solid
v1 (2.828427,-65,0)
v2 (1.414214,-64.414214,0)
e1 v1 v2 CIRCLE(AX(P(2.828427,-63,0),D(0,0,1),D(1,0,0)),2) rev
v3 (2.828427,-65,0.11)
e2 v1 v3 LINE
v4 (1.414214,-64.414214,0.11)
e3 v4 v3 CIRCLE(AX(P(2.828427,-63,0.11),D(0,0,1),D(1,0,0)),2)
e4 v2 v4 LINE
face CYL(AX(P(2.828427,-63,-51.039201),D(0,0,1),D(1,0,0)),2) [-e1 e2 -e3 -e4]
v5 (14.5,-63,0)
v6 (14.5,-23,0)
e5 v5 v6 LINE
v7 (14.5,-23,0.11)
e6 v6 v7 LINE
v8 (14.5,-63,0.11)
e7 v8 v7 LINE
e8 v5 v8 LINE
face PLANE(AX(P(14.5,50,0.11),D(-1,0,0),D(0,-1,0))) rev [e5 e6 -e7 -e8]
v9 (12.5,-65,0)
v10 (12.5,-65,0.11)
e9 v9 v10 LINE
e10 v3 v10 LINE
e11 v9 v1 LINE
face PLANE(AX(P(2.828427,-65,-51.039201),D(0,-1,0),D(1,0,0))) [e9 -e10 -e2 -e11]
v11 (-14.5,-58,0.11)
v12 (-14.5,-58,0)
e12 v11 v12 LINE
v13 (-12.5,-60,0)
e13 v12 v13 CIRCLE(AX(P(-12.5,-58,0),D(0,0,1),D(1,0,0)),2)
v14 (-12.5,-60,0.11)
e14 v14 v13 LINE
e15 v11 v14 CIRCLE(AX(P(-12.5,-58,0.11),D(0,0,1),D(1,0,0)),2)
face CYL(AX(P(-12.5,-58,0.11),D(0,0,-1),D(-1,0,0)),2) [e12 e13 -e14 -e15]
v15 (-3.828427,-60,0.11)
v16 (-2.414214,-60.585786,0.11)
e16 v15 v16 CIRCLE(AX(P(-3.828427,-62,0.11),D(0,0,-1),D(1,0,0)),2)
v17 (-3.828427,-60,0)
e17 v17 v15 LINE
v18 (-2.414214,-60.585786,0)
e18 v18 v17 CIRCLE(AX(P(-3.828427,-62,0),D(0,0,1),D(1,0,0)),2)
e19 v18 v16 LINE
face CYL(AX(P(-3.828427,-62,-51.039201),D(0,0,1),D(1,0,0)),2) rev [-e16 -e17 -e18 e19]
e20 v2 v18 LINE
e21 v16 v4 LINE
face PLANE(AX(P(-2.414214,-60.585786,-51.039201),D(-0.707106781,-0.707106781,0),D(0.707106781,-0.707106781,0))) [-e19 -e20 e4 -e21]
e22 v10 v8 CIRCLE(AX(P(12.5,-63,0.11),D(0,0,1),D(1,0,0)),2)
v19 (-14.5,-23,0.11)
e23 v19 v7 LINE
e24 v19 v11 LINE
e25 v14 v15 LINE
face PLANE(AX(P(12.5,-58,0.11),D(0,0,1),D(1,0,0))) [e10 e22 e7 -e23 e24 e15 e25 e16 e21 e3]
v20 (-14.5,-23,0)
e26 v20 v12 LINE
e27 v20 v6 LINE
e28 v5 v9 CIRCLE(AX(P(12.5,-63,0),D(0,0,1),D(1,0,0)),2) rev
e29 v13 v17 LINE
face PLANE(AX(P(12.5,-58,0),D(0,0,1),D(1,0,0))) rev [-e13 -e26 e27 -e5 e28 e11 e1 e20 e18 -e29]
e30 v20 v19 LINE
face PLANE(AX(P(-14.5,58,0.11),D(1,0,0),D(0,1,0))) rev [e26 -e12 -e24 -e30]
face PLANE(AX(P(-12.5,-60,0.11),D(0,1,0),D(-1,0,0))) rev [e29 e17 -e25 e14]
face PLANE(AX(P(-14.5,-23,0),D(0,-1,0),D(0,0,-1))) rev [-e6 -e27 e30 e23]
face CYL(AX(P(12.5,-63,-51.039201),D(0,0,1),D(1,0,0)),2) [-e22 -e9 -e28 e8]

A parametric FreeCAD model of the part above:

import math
import FreeCAD as App
import Part
import Sketcher
from FreeCAD import Vector
Q = App.Units.Quantity

doc = App.newDocument("Part")
params = doc.addObject("Spreadsheet::Sheet", "Params")
for row, (alias, value) in enumerate([
    ("sketch1_radius", "2 mm"),
    ("sketch1_radius2", "10 mm"),
    ("sketch1_width", "17 mm"),
    ("sketch1_height", "116 mm"),
    ("pad1_length", "0.11 mm"),
    ("sketch2_radius", "10 mm"),
    ("sketch2_radius2", "2 mm"),
    ("sketch2_width", "29 mm"),
    ("sketch2_height", "73 mm"),
    ("sketch3_radius", "2 mm"),
    ("sketch3_width", "29 mm"),
    ("sketch3_height", "40 mm"),
    ("sketch3_height2", "35 mm"),
    ("pad2_length", "0.11 mm"),
], start=1):
    params.set(f"A{row}", alias)
    params.set(f"B{row}", "=" + value)
    params.setAlias(f"B{row}", alias)

body = doc.addObject("PartDesign::Body", "Body")

# Sketch on XY plane
sketch1 = body.newObject("Sketcher::SketchObject", "Sketch")
sketch1.AttachmentSupport = (doc.getObject("XY_Plane"), [""])
sketch1.MapMode = "FlatFace"
sketch1.addGeometry([
    Part.LineSegment(Vector(4.5, 60, 0), Vector(-12.5, 60, 0)),  # 0
    Part.ArcOfCircle(Part.Circle(Vector(-12.5, 58, 0), Vector(0, 0, 1), 2), math.radians(90), math.radians(180)),  # 1
    Part.LineSegment(Vector(-14.5, 58, 0), Vector(-14.5, -58, 0)),  # 2
    Part.ArcOfCircle(Part.Circle(Vector(-12.5, -58, 0), Vector(0, 0, 1), 2), math.radians(-180), math.radians(-90)),  # 3
    Part.LineSegment(Vector(-12.5, -60, 0), Vector(12.5, -60, 0)),  # 4
    Part.ArcOfCircle(Part.Circle(Vector(12.5, -58, 0), Vector(0, 0, 1), 2), math.radians(-90), math.radians(0)),  # 5
    Part.LineSegment(Vector(14.5, -58, 0), Vector(14.5, 50, 0)),  # 6
    Part.ArcOfCircle(Part.Circle(Vector(4.5, 50, 0), Vector(0, 0, 1), 10), math.radians(0), math.radians(90)),  # 7
], False)
sketch1.addConstraint([
    Sketcher.Constraint("Tangent", 0, 2, 1, 1),
    Sketcher.Constraint("Tangent", 1, 2, 2, 1),
    Sketcher.Constraint("Tangent", 2, 2, 3, 1),
    Sketcher.Constraint("Tangent", 3, 2, 4, 1),
    Sketcher.Constraint("Tangent", 4, 2, 5, 1),
    Sketcher.Constraint("Tangent", 5, 2, 6, 1),
    Sketcher.Constraint("Tangent", 6, 2, 7, 1),
    Sketcher.Constraint("Tangent", 7, 2, 0, 1),
    Sketcher.Constraint("Horizontal", 0),
    Sketcher.Constraint("Vertical", 2),
    Sketcher.Constraint("Horizontal", 4),
    Sketcher.Constraint("Vertical", 6),
    Sketcher.Constraint("Equal", 1, 3),
    Sketcher.Constraint("Equal", 3, 5),
    Sketcher.Constraint("Symmetric", 1, 3, 5, 3, -1, 1),
    Sketcher.Constraint("Radius", 1, Q("2 mm")),
    Sketcher.Constraint("Radius", 7, Q("10 mm")),
    Sketcher.Constraint("DistanceX", 0, 2, 0, 1, Q("17 mm")),
    Sketcher.Constraint("DistanceY", 2, 2, 2, 1, Q("116 mm")),
])
sketch1.setExpression("Constraints[15]", "Params.sketch1_radius")
sketch1.setExpression("Constraints[16]", "Params.sketch1_radius2")
sketch1.setExpression("Constraints[17]", "Params.sketch1_width")
sketch1.setExpression("Constraints[18]", "Params.sketch1_height")
pad1 = body.newObject("PartDesign::Pad", "Pad")
pad1.Profile = sketch1
pad1.setExpression("Length", "Params.pad1_length")

# Sketch on XY plane
sketch2 = body.newObject("Sketcher::SketchObject", "Sketch001")
sketch2.AttachmentSupport = (doc.getObject("XY_Plane"), [""])
sketch2.MapMode = "FlatFace"
sketch2.AttachmentOffset = App.Placement(Vector(0, 0, 0.11), App.Rotation())
sketch2.addGeometry([
    Part.LineSegment(Vector(-14.5, -23, 0), Vector(14.5, -23, 0)),  # 0
    Part.LineSegment(Vector(14.5, -23, 0), Vector(14.5, 50, 0)),  # 1
    Part.ArcOfCircle(Part.Circle(Vector(4.5, 50, 0), Vector(0, 0, 1), 10), math.radians(0), math.radians(90)),  # 2
    Part.LineSegment(Vector(4.5, 60, 0), Vector(-12.5, 60, 0)),  # 3
    Part.ArcOfCircle(Part.Circle(Vector(-12.5, 58, 0), Vector(0, 0, 1), 2), math.radians(90), math.radians(180)),  # 4
    Part.LineSegment(Vector(-14.5, 58, 0), Vector(-14.5, -23, 0)),  # 5
], False)
sketch2.addConstraint([
    Sketcher.Constraint("Coincident", 0, 2, 1, 1),
    Sketcher.Constraint("Tangent", 1, 2, 2, 1),
    Sketcher.Constraint("Tangent", 2, 2, 3, 1),
    Sketcher.Constraint("Tangent", 3, 2, 4, 1),
    Sketcher.Constraint("Tangent", 4, 2, 5, 1),
    Sketcher.Constraint("Coincident", 5, 2, 0, 1),
    Sketcher.Constraint("Horizontal", 0),
    Sketcher.Constraint("Vertical", 1),
    Sketcher.Constraint("Horizontal", 3),
    Sketcher.Constraint("Vertical", 5),
    Sketcher.Constraint("Radius", 2, Q("10 mm")),
    Sketcher.Constraint("Radius", 4, Q("2 mm")),
    Sketcher.Constraint("DistanceX", 0, 1, 0, 2, Q("29 mm")),
    Sketcher.Constraint("DistanceY", 1, 1, 1, 2, Q("73 mm")),
    Sketcher.Constraint("DistanceY", -1, 1, 2, 3, Q("50 mm")),
    Sketcher.Constraint("DistanceX", -1, 1, 2, 3, Q("4.5 mm")),
])
sketch2.setExpression("Constraints[10]", "Params.sketch2_radius")
sketch2.setExpression("Constraints[11]", "Params.sketch2_radius2")
sketch2.setExpression("Constraints[12]", "Params.sketch2_width")
sketch2.setExpression("Constraints[13]", "Params.sketch2_height")
pocket1 = body.newObject("PartDesign::Pocket", "Pocket")
pocket1.Profile = sketch2
pocket1.Type = "ThroughAll"

# Sketch on XY plane
sketch3 = body.newObject("Sketcher::SketchObject", "Sketch002")
sketch3.AttachmentSupport = (doc.getObject("XY_Plane"), [""])
sketch3.MapMode = "FlatFace"
sketch3.addGeometry([
    Part.LineSegment(Vector(14.5, -63, 0), Vector(14.5, -23, 0)),  # 0
    Part.LineSegment(Vector(14.5, -23, 0), Vector(-14.5, -23, 0)),  # 1
    Part.LineSegment(Vector(-14.5, -23, 0), Vector(-14.5, -58, 0)),  # 2
    Part.ArcOfCircle(Part.Circle(Vector(-12.5, -58, 0), Vector(0, 0, 1), 2), math.radians(-180), math.radians(-90)),  # 3
    Part.LineSegment(Vector(-12.5, -60, 0), Vector(-3.8, -60, 0)),  # 4
    Part.ArcOfCircle(Part.Circle(Vector(-3.8, -62, 0), Vector(0, 0, 1), 2), math.radians(45), math.radians(90)),  # 5
    Part.LineSegment(Vector(-2.4, -60.6, 0), Vector(1.4, -64.4, 0)),  # 6
    Part.ArcOfCircle(Part.Circle(Vector(2.8, -63, 0), Vector(0, 0, 1), 2), math.radians(-135), math.radians(-90)),  # 7
    Part.LineSegment(Vector(2.8, -65, 0), Vector(12.5, -65, 0)),  # 8
    Part.ArcOfCircle(Part.Circle(Vector(12.5, -63, 0), Vector(0, 0, 1), 2), math.radians(-90), math.radians(0)),  # 9
], False)
sketch3.addConstraint([
    Sketcher.Constraint("Coincident", 0, 2, 1, 1),
    Sketcher.Constraint("Coincident", 1, 2, 2, 1),
    Sketcher.Constraint("Tangent", 2, 2, 3, 1),
    Sketcher.Constraint("Tangent", 3, 2, 4, 1),
    Sketcher.Constraint("Tangent", 4, 2, 5, 2),
    Sketcher.Constraint("Tangent", 5, 1, 6, 1),
    Sketcher.Constraint("Tangent", 6, 2, 7, 1),
    Sketcher.Constraint("Tangent", 7, 2, 8, 1),
    Sketcher.Constraint("Tangent", 8, 2, 9, 1),
    Sketcher.Constraint("Tangent", 9, 2, 0, 1),
    Sketcher.Constraint("Vertical", 0),
    Sketcher.Constraint("Horizontal", 1),
    Sketcher.Constraint("Vertical", 2),
    Sketcher.Constraint("Horizontal", 4),
    Sketcher.Constraint("Horizontal", 8),
    Sketcher.Constraint("Equal", 3, 5),
    Sketcher.Constraint("Equal", 5, 7),
    Sketcher.Constraint("Equal", 7, 9),
    Sketcher.Constraint("Radius", 3, Q("2 mm")),
    Sketcher.Constraint("DistanceX", 1, 2, 1, 1, Q("29 mm")),
    Sketcher.Constraint("DistanceY", 0, 1, 0, 2, Q("40 mm")),
    Sketcher.Constraint("DistanceY", 2, 2, 2, 1, Q("35 mm")),
    Sketcher.Constraint("Angle", 6, Q("-45 deg")),
    Sketcher.Constraint("DistanceY", 3, 3, -1, 1, Q("58 mm")),
    Sketcher.Constraint("DistanceX", 3, 3, -1, 1, Q("12.5 mm")),
    Sketcher.Constraint("DistanceX", 4, 1, 4, 2, Q("8.671573 mm")),
])
sketch3.setExpression("Constraints[18]", "Params.sketch3_radius")
sketch3.setExpression("Constraints[19]", "Params.sketch3_width")
sketch3.setExpression("Constraints[20]", "Params.sketch3_height")
sketch3.setExpression("Constraints[21]", "Params.sketch3_height2")
pad2 = body.newObject("PartDesign::Pad", "Pad001")
pad2.Profile = sketch3
pad2.setExpression("Length", "Params.pad2_length")

doc.recompute()
